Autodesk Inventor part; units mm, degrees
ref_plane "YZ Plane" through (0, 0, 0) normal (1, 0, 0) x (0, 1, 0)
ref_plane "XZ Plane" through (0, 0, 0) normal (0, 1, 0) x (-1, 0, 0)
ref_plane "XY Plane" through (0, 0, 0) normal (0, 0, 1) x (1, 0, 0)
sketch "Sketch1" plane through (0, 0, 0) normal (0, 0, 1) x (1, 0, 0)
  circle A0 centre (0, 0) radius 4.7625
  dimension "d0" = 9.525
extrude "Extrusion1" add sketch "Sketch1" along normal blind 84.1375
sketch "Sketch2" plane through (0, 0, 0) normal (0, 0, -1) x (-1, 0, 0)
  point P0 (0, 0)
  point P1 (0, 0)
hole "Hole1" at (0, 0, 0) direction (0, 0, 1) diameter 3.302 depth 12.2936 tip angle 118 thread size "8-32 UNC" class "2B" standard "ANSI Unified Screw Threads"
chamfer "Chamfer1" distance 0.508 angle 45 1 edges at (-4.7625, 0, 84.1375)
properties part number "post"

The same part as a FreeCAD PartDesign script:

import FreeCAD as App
import Part
import Sketcher
from FreeCAD import Vector
Q = App.Units.Quantity


def edges_at(feature, points):
    """Names of the edges that pass closest to the given points."""
    edges = feature.Shape.Edges
    near = lambda p: min(range(len(edges)), key=lambda i: edges[i].distToShape(Part.Vertex(*p))[0])
    return sorted({f"Edge{near(p) + 1}" for p in points})

doc = App.newDocument("Part")
body = doc.addObject("PartDesign::Body", "Body")

# Sketch on XY plane
sketch1 = body.newObject("Sketcher::SketchObject", "Sketch")
sketch1.AttachmentSupport = (doc.getObject("XY_Plane"), [""])
sketch1.MapMode = "FlatFace"
sketch1.addGeometry(Part.Circle(Vector(0, 0, 0), Vector(0, 0, 1), 4.8), False)
sketch1.addConstraint(Sketcher.Constraint("Coincident", 0, 3, -1, 1))
sketch1.addConstraint(Sketcher.Constraint("Diameter", 0, Q("0.375 in")))
pad1 = body.newObject("PartDesign::Pad", "Pad")
pad1.Profile = sketch1
pad1.Length = Q("3.3125 in")

# Sketch on XY plane
sketch2 = body.newObject("Sketcher::SketchObject", "Sketch001")
sketch2.AttachmentSupport = (doc.getObject("XY_Plane"), [""])
sketch2.MapMode = "FlatFace"
sketch2.addGeometry(Part.Circle(Vector(0, 0, 0), Vector(0, 0, 1), 1.7), False)
sketch2.addConstraint(Sketcher.Constraint("Coincident", 0, 3, -1, 1))
sketch2.addConstraint(Sketcher.Constraint("Diameter", 0, Q("0.13 in")))
doc.recompute()
hole = body.newObject("PartDesign::Hole", "Hole")
hole.Profile = sketch2
hole.ThreadType = "None"
hole.Diameter = Q("0.13 in")
hole.DepthType = "Dimension"
hole.Depth = Q("0.484 in")
hole.DrillPoint = "Angled"
hole.DrillPointAngle = 118
hole.Reversed = True
doc.recompute()

chamfer = body.newObject("PartDesign::Chamfer", "Chamfer")
chamfer.Base = (hole, edges_at(hole, [(-4.763, 0, 84.138)]))
chamfer.Size = Q("0.02 in")

doc.recompute()
